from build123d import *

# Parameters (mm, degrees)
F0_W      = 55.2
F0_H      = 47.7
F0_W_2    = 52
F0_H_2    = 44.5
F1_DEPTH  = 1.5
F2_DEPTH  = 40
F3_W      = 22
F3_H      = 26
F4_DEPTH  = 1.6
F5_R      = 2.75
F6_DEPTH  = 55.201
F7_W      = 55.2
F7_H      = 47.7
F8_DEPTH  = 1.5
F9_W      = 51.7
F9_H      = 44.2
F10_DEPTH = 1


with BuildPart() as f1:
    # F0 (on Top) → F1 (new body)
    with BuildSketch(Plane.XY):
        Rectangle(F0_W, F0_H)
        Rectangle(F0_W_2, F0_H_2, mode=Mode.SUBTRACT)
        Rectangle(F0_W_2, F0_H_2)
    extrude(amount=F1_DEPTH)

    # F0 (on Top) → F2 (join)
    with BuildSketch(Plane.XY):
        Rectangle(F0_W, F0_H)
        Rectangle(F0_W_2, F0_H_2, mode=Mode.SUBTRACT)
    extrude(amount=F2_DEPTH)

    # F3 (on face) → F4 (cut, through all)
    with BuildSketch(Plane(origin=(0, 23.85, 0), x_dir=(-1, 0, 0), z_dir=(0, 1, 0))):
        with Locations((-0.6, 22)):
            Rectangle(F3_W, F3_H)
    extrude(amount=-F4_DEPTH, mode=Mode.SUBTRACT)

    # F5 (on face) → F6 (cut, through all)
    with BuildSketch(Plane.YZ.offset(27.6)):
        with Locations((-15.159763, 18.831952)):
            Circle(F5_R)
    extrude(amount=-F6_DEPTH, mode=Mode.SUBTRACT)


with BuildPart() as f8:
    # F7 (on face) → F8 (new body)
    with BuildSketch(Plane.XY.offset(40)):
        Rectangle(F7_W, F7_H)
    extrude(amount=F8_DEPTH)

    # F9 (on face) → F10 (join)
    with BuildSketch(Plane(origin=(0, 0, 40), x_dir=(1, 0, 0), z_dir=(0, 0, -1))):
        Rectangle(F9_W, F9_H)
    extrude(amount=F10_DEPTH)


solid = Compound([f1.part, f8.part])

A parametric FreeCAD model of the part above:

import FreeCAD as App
import Part
import Sketcher
Q = App.Units.Quantity

doc = App.newDocument("Part")
body = doc.addObject("PartDesign::Body", "Body")

sketch1 = body.newObject("Sketcher::SketchObject", "Sketch")
sketch1.AttachmentSupport = (doc.getObject("XY_Plane"), [""])
sketch1.MapMode = "FlatFace"
sketch1.addGeometry(Part.LineSegment(App.Vector(-28, 24, 0), App.Vector(-28, -24, 0)), False)
sketch1.addGeometry(Part.LineSegment(App.Vector(-28, -24, 0), App.Vector(28, -24, 0)), False)
sketch1.addGeometry(Part.LineSegment(App.Vector(28, -24, 0), App.Vector(28, 24, 0)), False)
sketch1.addGeometry(Part.LineSegment(App.Vector(28, 24, 0), App.Vector(-28, 24, 0)), False)
sketch1.addConstraint(Sketcher.Constraint("Coincident", 0, 2, 1, 1))
sketch1.addConstraint(Sketcher.Constraint("Coincident", 1, 2, 2, 1))
sketch1.addConstraint(Sketcher.Constraint("Coincident", 2, 2, 3, 1))
sketch1.addConstraint(Sketcher.Constraint("Coincident", 3, 2, 0, 1))
sketch1.addConstraint(Sketcher.Constraint("Vertical", 0))
sketch1.addConstraint(Sketcher.Constraint("Horizontal", 1))
sketch1.addConstraint(Sketcher.Constraint("Vertical", 2))
sketch1.addConstraint(Sketcher.Constraint("Horizontal", 3))
sketch1.addConstraint(Sketcher.Constraint("Symmetric", 0, 2, 2, 2, -1, 1))
sketch1.addConstraint(Sketcher.Constraint("DistanceX", 1, 1, 1, 2, Q("55.2 mm")))
sketch1.addConstraint(Sketcher.Constraint("DistanceY", 0, 2, 0, 1, Q("47.7 mm")))
pad1 = body.newObject("PartDesign::Pad", "Pad")
pad1.Profile = sketch1
pad1.Length = 1.5

sketch2 = body.newObject("Sketcher::SketchObject", "Sketch001")
sketch2.AttachmentSupport = (doc.getObject("XY_Plane"), [""])
sketch2.MapMode = "FlatFace"
sketch2.addGeometry(Part.LineSegment(App.Vector(-28, 24, 0), App.Vector(-28, -24, 0)), False)
sketch2.addGeometry(Part.LineSegment(App.Vector(-28, -24, 0), App.Vector(28, -24, 0)), False)
sketch2.addGeometry(Part.LineSegment(App.Vector(28, -24, 0), App.Vector(28, 24, 0)), False)
sketch2.addGeometry(Part.LineSegment(App.Vector(28, 24, 0), App.Vector(-28, 24, 0)), False)
sketch2.addGeometry(Part.LineSegment(App.Vector(26, -22, 0), App.Vector(-26, -22, 0)), False)
sketch2.addGeometry(Part.LineSegment(App.Vector(-26, -22, 0), App.Vector(-26, 22, 0)), False)
sketch2.addGeometry(Part.LineSegment(App.Vector(-26, 22, 0), App.Vector(26, 22, 0)), False)
sketch2.addGeometry(Part.LineSegment(App.Vector(26, 22, 0), App.Vector(26, -22, 0)), False)
sketch2.addConstraint(Sketcher.Constraint("Coincident", 0, 2, 1, 1))
sketch2.addConstraint(Sketcher.Constraint("Coincident", 1, 2, 2, 1))
sketch2.addConstraint(Sketcher.Constraint("Coincident", 2, 2, 3, 1))
sketch2.addConstraint(Sketcher.Constraint("Coincident", 3, 2, 0, 1))
sketch2.addConstraint(Sketcher.Constraint("Coincident", 4, 2, 5, 1))
sketch2.addConstraint(Sketcher.Constraint("Coincident", 5, 2, 6, 1))
sketch2.addConstraint(Sketcher.Constraint("Coincident", 6, 2, 7, 1))
sketch2.addConstraint(Sketcher.Constraint("Coincident", 7, 2, 4, 1))
sketch2.addConstraint(Sketcher.Constraint("Vertical", 0))
sketch2.addConstraint(Sketcher.Constraint("Horizontal", 1))
sketch2.addConstraint(Sketcher.Constraint("Vertical", 2))
sketch2.addConstraint(Sketcher.Constraint("Horizontal", 3))
sketch2.addConstraint(Sketcher.Constraint("Horizontal", 4))
sketch2.addConstraint(Sketcher.Constraint("Vertical", 5))
sketch2.addConstraint(Sketcher.Constraint("Horizontal", 6))
sketch2.addConstraint(Sketcher.Constraint("Vertical", 7))
sketch2.addConstraint(Sketcher.Constraint("Symmetric", 0, 2, 2, 2, -1, 1))
sketch2.addConstraint(Sketcher.Constraint("Symmetric", 4, 2, 6, 2, -1, 1))
sketch2.addConstraint(Sketcher.Constraint("DistanceX", 4, 2, 4, 1, Q("52 mm")))
sketch2.addConstraint(Sketcher.Constraint("DistanceX", 1, 1, 1, 2, Q("55.2 mm")))
sketch2.addConstraint(Sketcher.Constraint("DistanceY", 0, 2, 0, 1, Q("47.7 mm")))
sketch2.addConstraint(Sketcher.Constraint("DistanceY", 5, 1, 5, 2, Q("44.5 mm")))
pad2 = body.newObject("PartDesign::Pad", "Pad001")
pad2.Profile = sketch2
pad2.Length = 40

sketch3 = body.newObject("Sketcher::SketchObject", "Sketch002")
sketch3.AttachmentSupport = (doc.getObject("XZ_Plane"), [""])
sketch3.MapMode = "FlatFace"
sketch3.AttachmentOffset = App.Placement(App.Vector(0, 0, -23.85), App.Rotation())
sketch3.addGeometry(Part.LineSegment(App.Vector(12, 35, 0), App.Vector(12, 9, 0)), False)
sketch3.addGeometry(Part.LineSegment(App.Vector(12, 9, 0), App.Vector(-10, 9, 0)), False)
sketch3.addGeometry(Part.LineSegment(App.Vector(-10, 9, 0), App.Vector(-10, 35, 0)), False)
sketch3.addGeometry(Part.LineSegment(App.Vector(-10, 35, 0), App.Vector(12, 35, 0)), False)
sketch3.addConstraint(Sketcher.Constraint("Coincident", 0, 2, 1, 1))
sketch3.addConstraint(Sketcher.Constraint("Coincident", 1, 2, 2, 1))
sketch3.addConstraint(Sketcher.Constraint("Coincident", 2, 2, 3, 1))
sketch3.addConstraint(Sketcher.Constraint("Coincident", 3, 2, 0, 1))
sketch3.addConstraint(Sketcher.Constraint("Vertical", 0))
sketch3.addConstraint(Sketcher.Constraint("Horizontal", 1))
sketch3.addConstraint(Sketcher.Constraint("Vertical", 2))
sketch3.addConstraint(Sketcher.Constraint("Horizontal", 3))
sketch3.addConstraint(Sketcher.Constraint("DistanceX", 1, 2, 1, 1, Q("22 mm")))
sketch3.addConstraint(Sketcher.Constraint("DistanceY", 0, 2, 0, 1, Q("26 mm")))
sketch3.addConstraint(Sketcher.Constraint("DistanceY", -1, 1, 0, 2, Q("9 mm")))
sketch3.addConstraint(Sketcher.Constraint("DistanceX", -1, 1, 0, 2, Q("11.6 mm")))
pocket1 = body.newObject("PartDesign::Pocket", "Pocket")
pocket1.Profile = sketch3
pocket1.Length = 1.6
pocket1.Reversed = True

sketch4 = body.newObject("Sketcher::SketchObject", "Sketch003")
sketch4.AttachmentSupport = (doc.getObject("YZ_Plane"), [""])
sketch4.MapMode = "FlatFace"
sketch4.AttachmentOffset = App.Placement(App.Vector(0, 0, 27.6), App.Rotation())
sketch4.addGeometry(Part.Circle(App.Vector(-15.2, 18.8, 0), App.Vector(0, 0, 1), 2.8), False)
sketch4.addConstraint(Sketcher.Constraint("Diameter", 0, Q("5.5 mm")))
sketch4.addConstraint(Sketcher.Constraint("DistanceX", 0, 3, -1, 1, Q("15.159763 mm")))
sketch4.addConstraint(Sketcher.Constraint("DistanceY", -1, 1, 0, 3, Q("18.831952 mm")))
pocket2 = body.newObject("PartDesign::Pocket", "Pocket001")
pocket2.Profile = sketch4
pocket2.Type = "ThroughAll"
body2 = doc.addObject("PartDesign::Body", "Body001")

sketch5 = body2.newObject("Sketcher::SketchObject", "Sketch004")
sketch5.AttachmentSupport = (doc.getObject("XY_Plane001"), [""])
sketch5.MapMode = "FlatFace"
sketch5.AttachmentOffset = App.Placement(App.Vector(0, 0, 40), App.Rotation())
sketch5.addGeometry(Part.LineSegment(App.Vector(-28, 24, 0), App.Vector(-28, -24, 0)), False)
sketch5.addGeometry(Part.LineSegment(App.Vector(-28, -24, 0), App.Vector(28, -24, 0)), False)
sketch5.addGeometry(Part.LineSegment(App.Vector(28, -24, 0), App.Vector(28, 24, 0)), False)
sketch5.addGeometry(Part.LineSegment(App.Vector(28, 24, 0), App.Vector(-28, 24, 0)), False)
sketch5.addConstraint(Sketcher.Constraint("Coincident", 0, 2, 1, 1))
sketch5.addConstraint(Sketcher.Constraint("Coincident", 1, 2, 2, 1))
sketch5.addConstraint(Sketcher.Constraint("Coincident", 2, 2, 3, 1))
sketch5.addConstraint(Sketcher.Constraint("Coincident", 3, 2, 0, 1))
sketch5.addConstraint(Sketcher.Constraint("Vertical", 0))
sketch5.addConstraint(Sketcher.Constraint("Horizontal", 1))
sketch5.addConstraint(Sketcher.Constraint("Vertical", 2))
sketch5.addConstraint(Sketcher.Constraint("Horizontal", 3))
sketch5.addConstraint(Sketcher.Constraint("Symmetric", 0, 2, 2, 2, -1, 1))
sketch5.addConstraint(Sketcher.Constraint("DistanceX", 1, 1, 1, 2, Q("55.2 mm")))
sketch5.addConstraint(Sketcher.Constraint("DistanceY", 0, 2, 0, 1, Q("47.7 mm")))
pad3 = body2.newObject("PartDesign::Pad", "Pad002")
pad3.Profile = sketch5
pad3.Length = 1.5

sketch6 = body2.newObject("Sketcher::SketchObject", "Sketch005")
sketch6.AttachmentSupport = (doc.getObject("XY_Plane001"), [""])
sketch6.MapMode = "FlatFace"
sketch6.AttachmentOffset = App.Placement(App.Vector(0, 0, 40), App.Rotation())
sketch6.addGeometry(Part.LineSegment(App.Vector(-26, -22, 0), App.Vector(-26, 22, 0)), False)
sketch6.addGeometry(Part.LineSegment(App.Vector(-26, 22, 0), App.Vector(26, 22, 0)), False)
sketch6.addGeometry(Part.LineSegment(App.Vector(26, 22, 0), App.Vector(26, -22, 0)), False)
sketch6.addGeometry(Part.LineSegment(App.Vector(26, -22, 0), App.Vector(-26, -22, 0)), False)
sketch6.addConstraint(Sketcher.Constraint("Coincident", 0, 2, 1, 1))
sketch6.addConstraint(Sketcher.Constraint("Coincident", 1, 2, 2, 1))
sketch6.addConstraint(Sketcher.Constraint("Coincident", 2, 2, 3, 1))
sketch6.addConstraint(Sketcher.Constraint("Coincident", 3, 2, 0, 1))
sketch6.addConstraint(Sketcher.Constraint("Vertical", 0))
sketch6.addConstraint(Sketcher.Constraint("Horizontal", 1))
sketch6.addConstraint(Sketcher.Constraint("Vertical", 2))
sketch6.addConstraint(Sketcher.Constraint("Horizontal", 3))
sketch6.addConstraint(Sketcher.Constraint("Symmetric", 0, 2, 2, 2, -1, 1))
sketch6.addConstraint(Sketcher.Constraint("DistanceX", 1, 1, 1, 2, Q("51.7 mm")))
sketch6.addConstraint(Sketcher.Constraint("DistanceY", 0, 1, 0, 2, Q("44.2 mm")))
pad4 = body2.newObject("PartDesign::Pad", "Pad003")
pad4.Profile = sketch6
pad4.Length = 1
pad4.Reversed = True

doc.recompute()
